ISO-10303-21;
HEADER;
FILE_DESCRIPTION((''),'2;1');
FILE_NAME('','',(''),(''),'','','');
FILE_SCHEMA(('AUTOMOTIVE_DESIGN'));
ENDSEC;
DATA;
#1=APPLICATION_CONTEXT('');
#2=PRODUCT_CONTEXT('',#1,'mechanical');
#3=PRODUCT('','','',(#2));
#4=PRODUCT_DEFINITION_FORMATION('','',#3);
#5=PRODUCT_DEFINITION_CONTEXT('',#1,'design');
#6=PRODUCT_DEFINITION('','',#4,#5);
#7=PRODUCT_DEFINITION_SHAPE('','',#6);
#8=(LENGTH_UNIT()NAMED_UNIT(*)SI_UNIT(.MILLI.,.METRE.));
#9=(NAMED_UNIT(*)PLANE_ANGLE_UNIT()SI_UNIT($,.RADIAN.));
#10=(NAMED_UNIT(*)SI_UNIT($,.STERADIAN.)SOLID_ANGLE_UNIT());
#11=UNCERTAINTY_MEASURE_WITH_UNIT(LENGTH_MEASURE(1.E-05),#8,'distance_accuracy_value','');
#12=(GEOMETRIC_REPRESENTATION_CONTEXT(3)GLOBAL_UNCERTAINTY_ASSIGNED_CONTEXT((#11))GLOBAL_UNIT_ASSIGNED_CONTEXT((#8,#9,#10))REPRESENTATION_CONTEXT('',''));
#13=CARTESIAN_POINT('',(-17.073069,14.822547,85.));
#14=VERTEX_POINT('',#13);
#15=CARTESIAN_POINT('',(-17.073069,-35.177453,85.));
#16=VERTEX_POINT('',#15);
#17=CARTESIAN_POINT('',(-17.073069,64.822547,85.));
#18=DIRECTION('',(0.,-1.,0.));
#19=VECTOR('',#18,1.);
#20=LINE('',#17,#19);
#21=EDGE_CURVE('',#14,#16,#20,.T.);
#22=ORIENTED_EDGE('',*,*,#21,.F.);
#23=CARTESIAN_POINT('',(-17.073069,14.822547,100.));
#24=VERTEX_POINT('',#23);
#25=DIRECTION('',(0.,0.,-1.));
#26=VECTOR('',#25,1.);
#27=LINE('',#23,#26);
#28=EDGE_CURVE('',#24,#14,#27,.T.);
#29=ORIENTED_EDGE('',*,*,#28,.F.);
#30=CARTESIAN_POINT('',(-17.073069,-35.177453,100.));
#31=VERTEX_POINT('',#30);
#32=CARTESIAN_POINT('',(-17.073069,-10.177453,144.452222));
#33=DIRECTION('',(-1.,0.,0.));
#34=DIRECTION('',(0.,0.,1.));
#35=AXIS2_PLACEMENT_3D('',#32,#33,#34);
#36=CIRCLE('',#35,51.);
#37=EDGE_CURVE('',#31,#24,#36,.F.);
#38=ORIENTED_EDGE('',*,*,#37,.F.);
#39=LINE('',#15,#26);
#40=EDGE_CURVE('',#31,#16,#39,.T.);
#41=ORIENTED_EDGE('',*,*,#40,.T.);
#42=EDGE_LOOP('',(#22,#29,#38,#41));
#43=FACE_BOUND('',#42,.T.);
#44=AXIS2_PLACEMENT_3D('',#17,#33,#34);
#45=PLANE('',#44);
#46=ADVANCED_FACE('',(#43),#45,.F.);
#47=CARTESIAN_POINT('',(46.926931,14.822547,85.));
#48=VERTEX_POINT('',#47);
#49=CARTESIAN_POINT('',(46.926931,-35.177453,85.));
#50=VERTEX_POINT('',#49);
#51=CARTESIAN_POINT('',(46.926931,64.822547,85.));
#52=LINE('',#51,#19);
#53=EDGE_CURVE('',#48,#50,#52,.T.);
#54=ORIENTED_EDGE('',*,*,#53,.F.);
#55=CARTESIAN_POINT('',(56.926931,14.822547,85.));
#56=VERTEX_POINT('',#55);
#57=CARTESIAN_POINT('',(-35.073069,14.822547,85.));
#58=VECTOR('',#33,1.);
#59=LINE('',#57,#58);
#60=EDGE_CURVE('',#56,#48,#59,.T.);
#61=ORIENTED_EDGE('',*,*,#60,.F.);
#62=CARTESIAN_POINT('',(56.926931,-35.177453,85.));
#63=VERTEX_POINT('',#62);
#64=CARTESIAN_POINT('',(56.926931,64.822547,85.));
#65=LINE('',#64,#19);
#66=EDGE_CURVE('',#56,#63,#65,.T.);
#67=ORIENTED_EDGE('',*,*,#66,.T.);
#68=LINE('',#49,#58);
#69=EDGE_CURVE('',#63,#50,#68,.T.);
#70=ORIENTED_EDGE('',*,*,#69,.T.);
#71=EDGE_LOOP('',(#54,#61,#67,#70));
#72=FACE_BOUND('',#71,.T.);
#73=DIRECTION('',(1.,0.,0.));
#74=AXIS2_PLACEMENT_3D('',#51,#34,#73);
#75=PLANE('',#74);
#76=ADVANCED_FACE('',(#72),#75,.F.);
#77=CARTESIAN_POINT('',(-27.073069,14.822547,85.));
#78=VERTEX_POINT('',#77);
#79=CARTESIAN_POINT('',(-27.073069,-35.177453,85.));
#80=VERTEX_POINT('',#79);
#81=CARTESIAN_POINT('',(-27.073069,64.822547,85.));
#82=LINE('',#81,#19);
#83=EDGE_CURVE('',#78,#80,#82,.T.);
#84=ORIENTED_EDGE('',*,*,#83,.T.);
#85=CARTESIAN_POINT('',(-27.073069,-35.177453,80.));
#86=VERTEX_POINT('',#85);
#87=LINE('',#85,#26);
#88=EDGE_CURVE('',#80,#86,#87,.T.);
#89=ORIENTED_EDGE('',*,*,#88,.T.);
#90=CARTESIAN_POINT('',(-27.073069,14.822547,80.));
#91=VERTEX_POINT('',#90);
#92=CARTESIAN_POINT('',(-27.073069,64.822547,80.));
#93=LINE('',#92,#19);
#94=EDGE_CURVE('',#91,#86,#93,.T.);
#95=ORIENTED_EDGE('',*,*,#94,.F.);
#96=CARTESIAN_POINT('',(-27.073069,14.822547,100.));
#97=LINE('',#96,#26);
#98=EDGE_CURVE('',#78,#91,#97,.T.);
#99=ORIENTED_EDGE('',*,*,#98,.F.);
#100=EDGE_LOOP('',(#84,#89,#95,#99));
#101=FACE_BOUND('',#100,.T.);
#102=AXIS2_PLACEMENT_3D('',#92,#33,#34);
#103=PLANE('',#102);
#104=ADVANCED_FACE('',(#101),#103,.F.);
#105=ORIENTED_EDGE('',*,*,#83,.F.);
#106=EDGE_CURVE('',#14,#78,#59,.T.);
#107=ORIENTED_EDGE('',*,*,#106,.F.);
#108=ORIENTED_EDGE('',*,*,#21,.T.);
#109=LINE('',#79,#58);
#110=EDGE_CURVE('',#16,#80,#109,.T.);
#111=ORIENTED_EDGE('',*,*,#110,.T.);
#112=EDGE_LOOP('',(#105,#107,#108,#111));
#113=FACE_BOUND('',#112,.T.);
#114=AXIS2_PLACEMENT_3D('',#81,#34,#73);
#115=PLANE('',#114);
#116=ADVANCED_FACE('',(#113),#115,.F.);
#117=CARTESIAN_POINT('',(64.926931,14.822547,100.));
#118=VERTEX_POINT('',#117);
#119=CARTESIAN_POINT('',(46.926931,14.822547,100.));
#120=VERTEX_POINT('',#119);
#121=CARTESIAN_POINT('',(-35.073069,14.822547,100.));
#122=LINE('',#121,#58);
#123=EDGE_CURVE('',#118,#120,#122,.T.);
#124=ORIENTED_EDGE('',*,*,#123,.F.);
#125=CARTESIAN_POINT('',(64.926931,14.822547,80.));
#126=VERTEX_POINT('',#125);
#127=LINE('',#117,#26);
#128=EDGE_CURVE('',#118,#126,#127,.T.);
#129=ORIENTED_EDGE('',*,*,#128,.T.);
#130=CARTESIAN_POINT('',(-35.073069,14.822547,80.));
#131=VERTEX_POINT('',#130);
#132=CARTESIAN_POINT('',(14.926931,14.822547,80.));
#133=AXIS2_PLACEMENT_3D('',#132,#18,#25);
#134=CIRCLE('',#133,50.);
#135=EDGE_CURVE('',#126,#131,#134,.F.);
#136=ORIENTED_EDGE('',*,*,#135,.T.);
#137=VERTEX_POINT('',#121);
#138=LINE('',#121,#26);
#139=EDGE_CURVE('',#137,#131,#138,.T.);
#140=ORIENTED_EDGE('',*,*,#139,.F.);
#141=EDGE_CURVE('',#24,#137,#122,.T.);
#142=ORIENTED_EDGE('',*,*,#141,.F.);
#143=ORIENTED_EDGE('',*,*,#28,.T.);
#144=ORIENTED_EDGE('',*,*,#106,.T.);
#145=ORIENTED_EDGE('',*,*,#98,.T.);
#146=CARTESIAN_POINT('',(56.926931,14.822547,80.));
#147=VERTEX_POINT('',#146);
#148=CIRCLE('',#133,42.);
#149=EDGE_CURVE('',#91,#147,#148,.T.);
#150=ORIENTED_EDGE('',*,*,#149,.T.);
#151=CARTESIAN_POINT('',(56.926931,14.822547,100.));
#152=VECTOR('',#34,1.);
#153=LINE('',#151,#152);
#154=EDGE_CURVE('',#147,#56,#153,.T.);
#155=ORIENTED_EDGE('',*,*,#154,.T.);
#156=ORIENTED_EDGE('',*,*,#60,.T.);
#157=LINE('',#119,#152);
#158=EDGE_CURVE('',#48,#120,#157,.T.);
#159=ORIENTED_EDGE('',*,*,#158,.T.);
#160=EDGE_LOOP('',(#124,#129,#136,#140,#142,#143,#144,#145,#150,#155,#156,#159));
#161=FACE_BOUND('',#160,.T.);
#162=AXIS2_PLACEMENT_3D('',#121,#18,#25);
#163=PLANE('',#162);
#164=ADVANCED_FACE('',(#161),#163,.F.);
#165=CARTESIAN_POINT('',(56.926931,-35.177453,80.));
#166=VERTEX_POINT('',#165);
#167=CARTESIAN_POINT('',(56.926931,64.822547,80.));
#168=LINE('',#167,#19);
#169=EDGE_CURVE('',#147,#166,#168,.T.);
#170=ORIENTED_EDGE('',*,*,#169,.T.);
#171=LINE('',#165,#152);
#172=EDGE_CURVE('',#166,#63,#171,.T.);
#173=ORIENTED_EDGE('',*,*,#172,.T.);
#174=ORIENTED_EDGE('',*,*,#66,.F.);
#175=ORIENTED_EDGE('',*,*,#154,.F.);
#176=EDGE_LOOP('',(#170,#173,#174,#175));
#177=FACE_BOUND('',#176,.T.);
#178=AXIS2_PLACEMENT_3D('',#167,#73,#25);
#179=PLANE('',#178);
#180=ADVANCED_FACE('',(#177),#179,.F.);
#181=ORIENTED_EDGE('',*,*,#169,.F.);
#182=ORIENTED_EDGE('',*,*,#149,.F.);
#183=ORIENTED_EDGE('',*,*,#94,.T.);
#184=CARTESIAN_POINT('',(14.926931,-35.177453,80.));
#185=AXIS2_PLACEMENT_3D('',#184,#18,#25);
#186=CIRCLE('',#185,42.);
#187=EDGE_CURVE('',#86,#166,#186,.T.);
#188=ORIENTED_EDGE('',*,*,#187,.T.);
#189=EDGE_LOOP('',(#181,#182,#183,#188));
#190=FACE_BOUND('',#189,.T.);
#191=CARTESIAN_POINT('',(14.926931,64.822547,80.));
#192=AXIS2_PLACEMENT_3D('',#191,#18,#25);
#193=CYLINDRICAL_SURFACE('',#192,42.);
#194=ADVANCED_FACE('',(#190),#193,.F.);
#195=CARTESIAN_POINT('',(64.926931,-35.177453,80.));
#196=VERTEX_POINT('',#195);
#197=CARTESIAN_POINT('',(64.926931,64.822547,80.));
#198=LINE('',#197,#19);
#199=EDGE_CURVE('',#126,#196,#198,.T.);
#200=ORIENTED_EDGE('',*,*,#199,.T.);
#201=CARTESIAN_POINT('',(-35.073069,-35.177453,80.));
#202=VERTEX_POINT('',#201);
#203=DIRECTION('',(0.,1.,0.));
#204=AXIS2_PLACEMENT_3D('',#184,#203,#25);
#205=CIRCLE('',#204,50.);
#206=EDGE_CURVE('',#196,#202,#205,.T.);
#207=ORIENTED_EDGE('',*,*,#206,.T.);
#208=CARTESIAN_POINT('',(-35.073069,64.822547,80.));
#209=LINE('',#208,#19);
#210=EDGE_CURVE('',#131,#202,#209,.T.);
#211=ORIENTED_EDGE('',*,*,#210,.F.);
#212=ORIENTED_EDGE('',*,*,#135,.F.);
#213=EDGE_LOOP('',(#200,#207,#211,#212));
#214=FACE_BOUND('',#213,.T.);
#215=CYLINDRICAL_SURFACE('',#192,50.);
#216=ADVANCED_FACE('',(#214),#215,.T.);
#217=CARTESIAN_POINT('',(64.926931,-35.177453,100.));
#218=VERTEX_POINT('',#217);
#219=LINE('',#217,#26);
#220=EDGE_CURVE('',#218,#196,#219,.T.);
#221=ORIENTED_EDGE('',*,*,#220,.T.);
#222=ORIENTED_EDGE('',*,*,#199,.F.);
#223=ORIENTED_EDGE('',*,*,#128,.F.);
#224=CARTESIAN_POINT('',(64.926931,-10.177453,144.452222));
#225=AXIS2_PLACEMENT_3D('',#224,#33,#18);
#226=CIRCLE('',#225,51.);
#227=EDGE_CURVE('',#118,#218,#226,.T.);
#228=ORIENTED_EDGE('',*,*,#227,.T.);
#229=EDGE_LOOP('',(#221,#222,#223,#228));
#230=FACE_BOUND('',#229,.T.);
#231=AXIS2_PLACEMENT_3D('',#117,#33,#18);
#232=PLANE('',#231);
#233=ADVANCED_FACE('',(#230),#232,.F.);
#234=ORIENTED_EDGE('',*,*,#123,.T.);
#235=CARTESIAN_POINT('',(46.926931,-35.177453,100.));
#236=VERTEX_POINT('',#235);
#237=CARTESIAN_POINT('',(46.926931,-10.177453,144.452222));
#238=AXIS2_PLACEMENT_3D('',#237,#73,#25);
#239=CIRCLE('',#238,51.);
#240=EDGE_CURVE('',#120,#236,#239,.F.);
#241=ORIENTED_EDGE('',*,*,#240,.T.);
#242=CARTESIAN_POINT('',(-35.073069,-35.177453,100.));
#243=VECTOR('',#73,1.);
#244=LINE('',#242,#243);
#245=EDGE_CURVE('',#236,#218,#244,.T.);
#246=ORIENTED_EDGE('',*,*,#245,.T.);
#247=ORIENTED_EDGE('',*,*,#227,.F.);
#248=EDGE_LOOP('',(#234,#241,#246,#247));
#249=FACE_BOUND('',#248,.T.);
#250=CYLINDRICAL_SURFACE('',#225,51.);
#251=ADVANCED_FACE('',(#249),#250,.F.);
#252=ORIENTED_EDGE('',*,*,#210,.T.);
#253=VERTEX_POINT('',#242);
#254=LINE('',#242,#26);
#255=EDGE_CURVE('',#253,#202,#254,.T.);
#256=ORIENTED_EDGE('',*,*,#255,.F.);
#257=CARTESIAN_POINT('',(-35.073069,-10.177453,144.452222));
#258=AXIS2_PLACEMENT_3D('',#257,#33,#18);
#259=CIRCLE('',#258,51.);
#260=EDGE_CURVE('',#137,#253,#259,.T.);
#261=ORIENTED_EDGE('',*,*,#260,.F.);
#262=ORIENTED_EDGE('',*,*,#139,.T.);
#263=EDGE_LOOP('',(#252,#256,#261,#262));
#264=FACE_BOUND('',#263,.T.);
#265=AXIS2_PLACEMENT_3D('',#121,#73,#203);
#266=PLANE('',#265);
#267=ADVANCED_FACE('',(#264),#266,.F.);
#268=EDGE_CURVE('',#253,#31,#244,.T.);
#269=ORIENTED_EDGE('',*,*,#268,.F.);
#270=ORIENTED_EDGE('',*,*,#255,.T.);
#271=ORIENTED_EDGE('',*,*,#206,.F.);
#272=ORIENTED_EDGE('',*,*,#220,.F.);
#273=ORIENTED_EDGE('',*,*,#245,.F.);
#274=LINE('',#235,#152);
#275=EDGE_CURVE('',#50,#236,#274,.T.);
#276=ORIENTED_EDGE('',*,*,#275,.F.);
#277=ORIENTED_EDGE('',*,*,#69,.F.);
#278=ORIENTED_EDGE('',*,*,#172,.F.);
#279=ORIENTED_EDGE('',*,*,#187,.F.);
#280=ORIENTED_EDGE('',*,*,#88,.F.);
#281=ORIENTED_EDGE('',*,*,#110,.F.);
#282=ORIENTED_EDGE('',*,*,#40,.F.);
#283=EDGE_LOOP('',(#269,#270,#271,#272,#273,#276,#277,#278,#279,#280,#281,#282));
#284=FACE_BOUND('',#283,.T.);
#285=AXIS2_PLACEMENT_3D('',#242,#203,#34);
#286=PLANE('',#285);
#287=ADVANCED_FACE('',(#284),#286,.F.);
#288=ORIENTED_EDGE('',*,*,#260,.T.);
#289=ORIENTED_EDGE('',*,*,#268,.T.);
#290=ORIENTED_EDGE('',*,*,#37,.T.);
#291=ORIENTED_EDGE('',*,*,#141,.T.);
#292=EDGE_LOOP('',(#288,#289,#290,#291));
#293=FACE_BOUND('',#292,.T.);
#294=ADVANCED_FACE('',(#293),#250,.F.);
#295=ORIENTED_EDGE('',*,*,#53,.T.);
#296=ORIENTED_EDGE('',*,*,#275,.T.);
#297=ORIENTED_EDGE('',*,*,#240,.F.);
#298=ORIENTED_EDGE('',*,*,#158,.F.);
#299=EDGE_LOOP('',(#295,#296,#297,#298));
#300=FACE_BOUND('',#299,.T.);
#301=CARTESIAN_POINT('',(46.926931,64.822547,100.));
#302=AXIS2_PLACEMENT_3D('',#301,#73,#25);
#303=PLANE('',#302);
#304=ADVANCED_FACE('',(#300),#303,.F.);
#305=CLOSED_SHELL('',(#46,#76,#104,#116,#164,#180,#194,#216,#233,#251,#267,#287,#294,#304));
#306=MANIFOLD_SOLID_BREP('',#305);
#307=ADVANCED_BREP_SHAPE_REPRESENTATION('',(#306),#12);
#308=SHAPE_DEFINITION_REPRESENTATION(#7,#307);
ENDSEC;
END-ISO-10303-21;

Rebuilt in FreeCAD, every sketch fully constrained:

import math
import FreeCAD as App
import Part
import Sketcher

doc = App.newDocument("Part")
body = doc.addObject("PartDesign::Body", "Body")

sketch1 = body.newObject("Sketcher::SketchObject", "Sketch")
sketch1.AttachmentSupport = (doc.getObject("XY_Plane"), [""])
sketch1.MapMode = "FlatFace"
sketch1.addGeometry([
    Part.LineSegment(App.Vector(-35.073069, 14.822547, 0), App.Vector(-35.073069, -35.177453, 0)),
    Part.LineSegment(App.Vector(-35.073069, -35.177453, 0), App.Vector(64.926931, -35.177453, 0)),
    Part.LineSegment(App.Vector(64.926931, -35.177453, 0), App.Vector(64.926931, 14.822547, 0)),
    Part.LineSegment(App.Vector(64.926931, 14.822547, 0), App.Vector(-35.073069, 14.822547, 0)),
], False)
sketch1.addConstraint([
    Sketcher.Constraint("Coincident", 0, 2, 1, 1),
    Sketcher.Constraint("Coincident", 1, 2, 2, 1),
    Sketcher.Constraint("Coincident", 2, 2, 3, 1),
    Sketcher.Constraint("Coincident", 3, 2, 0, 1),
    Sketcher.Constraint("Vertical", 0),
    Sketcher.Constraint("Horizontal", 1),
    Sketcher.Constraint("Vertical", 2),
    Sketcher.Constraint("Horizontal", 3),
    Sketcher.Constraint("DistanceX", 1, 1, 1, 2, 100.0),
    Sketcher.Constraint("DistanceY", 0, 2, 0, 1, 50.0),
    Sketcher.Constraint("DistanceX", 0, 2, -1, 1, 35.073069),
    Sketcher.Constraint("DistanceY", 0, 2, -1, 1, 35.177453),
])
pad1 = body.newObject("PartDesign::Pad", "Pad")
pad1.Profile = sketch1
pad1.Length = 100

sketch2 = body.newObject("Sketcher::SketchObject", "Sketch001")
sketch2.AttachmentSupport = (doc.getObject("YZ_Plane"), [""])
sketch2.MapMode = "FlatFace"
sketch2.AttachmentOffset = App.Placement(App.Vector(0, 0, -35.073069), App.Rotation())
sketch2.addGeometry(Part.Circle(App.Vector(-10.177453, 144.452222, 0), App.Vector(0, 0, 1), 51), False)
sketch2.addConstraint([
    Sketcher.Constraint("Diameter", 0, 102.0),
    Sketcher.Constraint("DistanceY", -1, 1, 0, 3, 144.452222),
    Sketcher.Constraint("DistanceX", 0, 3, -1, 1, 10.177453),
])
pocket1 = body.newObject("PartDesign::Pocket", "Pocket")
pocket1.Profile = sketch2
pocket1.Length = 100
pocket1.Reversed = True

sketch3 = body.newObject("Sketcher::SketchObject", "Sketch002")
sketch3.AttachmentSupport = (doc.getObject("XZ_Plane"), [""])
sketch3.MapMode = "FlatFace"
sketch3.AttachmentOffset = App.Placement(App.Vector(0, 0, 35.177453), App.Rotation())
sketch3.addGeometry([
    Part.LineSegment(App.Vector(-35.073069, 80, 0), App.Vector(-35.073069, 0, 0)),
    Part.LineSegment(App.Vector(-35.073069, 0, 0), App.Vector(64.926931, 0, 0)),
    Part.LineSegment(App.Vector(64.926931, 0, 0), App.Vector(64.926931, 80, 0)),
    Part.ArcOfCircle(Part.Circle(App.Vector(14.926931, 80, 0), App.Vector(0, 0, 1), 50), math.radians(180), math.radians(360)),
    Part.LineSegment(App.Vector(-17.073069, 85, 0), App.Vector(-27.073069, 85, 0)),
    Part.LineSegment(App.Vector(-27.073069, 85, 0), App.Vector(-27.073069, 80, 0)),
    Part.ArcOfCircle(Part.Circle(App.Vector(14.926931, 80, 0), App.Vector(0, 0, 1), 42), math.radians(180), math.radians(360)),
    Part.LineSegment(App.Vector(56.926931, 80, 0), App.Vector(56.926931, 85, 0)),
    Part.LineSegment(App.Vector(56.926931, 85, 0), App.Vector(46.926931, 85, 0)),
    Part.LineSegment(App.Vector(46.926931, 85, 0), App.Vector(46.926931, 100, 0)),
    Part.LineSegment(App.Vector(46.926931, 100, 0), App.Vector(-17.073069, 100, 0)),
    Part.LineSegment(App.Vector(-17.073069, 100, 0), App.Vector(-17.073069, 85, 0)),
], False)
sketch3.addConstraint([
    Sketcher.Constraint("Coincident", 0, 2, 1, 1),
    Sketcher.Constraint("Coincident", 1, 2, 2, 1),
    Sketcher.Constraint("Tangent", 2, 2, 3, 2),
    Sketcher.Constraint("Tangent", 3, 1, 0, 1),
    Sketcher.Constraint("Coincident", 4, 2, 5, 1),
    Sketcher.Constraint("Tangent", 5, 2, 6, 1),
    Sketcher.Constraint("Tangent", 6, 2, 7, 1),
    Sketcher.Constraint("Coincident", 7, 2, 8, 1),
    Sketcher.Constraint("Coincident", 8, 2, 9, 1),
    Sketcher.Constraint("Coincident", 9, 2, 10, 1),
    Sketcher.Constraint("Coincident", 10, 2, 11, 1),
    Sketcher.Constraint("Coincident", 11, 2, 4, 1),
    Sketcher.Constraint("Vertical", 0),
    Sketcher.Constraint("Horizontal", 1),
    Sketcher.Constraint("Vertical", 2),
    Sketcher.Constraint("Horizontal", 4),
    Sketcher.Constraint("Vertical", 5),
    Sketcher.Constraint("Vertical", 7),
    Sketcher.Constraint("Horizontal", 8),
    Sketcher.Constraint("Vertical", 9),
    Sketcher.Constraint("Horizontal", 10),
    Sketcher.Constraint("Vertical", 11),
    Sketcher.Constraint("Coincident", 6, 3, 3, 3),
    Sketcher.Constraint("PointOnObject", 0, 2, -1),
    Sketcher.Constraint("Horizontal", 4, 2, 7, 2),
    Sketcher.Constraint("Equal", 4, 8),
    Sketcher.Constraint("Radius", 3, 50.0),
    Sketcher.Constraint("Radius", 6, 42.0),
    Sketcher.Constraint("DistanceX", 4, 2, 4, 1, 10.0),
    Sketcher.Constraint("DistanceY", 0, 2, 0, 1, 80.0),
    Sketcher.Constraint("DistanceY", 5, 2, 5, 1, 5.0),
    Sketcher.Constraint("DistanceY", 9, 1, 9, 2, 15.0),
    Sketcher.Constraint("DistanceX", -1, 1, 3, 3, 14.926931),
])
pocket2 = body.newObject("PartDesign::Pocket", "Pocket001")
pocket2.Profile = sketch3
pocket2.Length = 100

doc.recompute()
